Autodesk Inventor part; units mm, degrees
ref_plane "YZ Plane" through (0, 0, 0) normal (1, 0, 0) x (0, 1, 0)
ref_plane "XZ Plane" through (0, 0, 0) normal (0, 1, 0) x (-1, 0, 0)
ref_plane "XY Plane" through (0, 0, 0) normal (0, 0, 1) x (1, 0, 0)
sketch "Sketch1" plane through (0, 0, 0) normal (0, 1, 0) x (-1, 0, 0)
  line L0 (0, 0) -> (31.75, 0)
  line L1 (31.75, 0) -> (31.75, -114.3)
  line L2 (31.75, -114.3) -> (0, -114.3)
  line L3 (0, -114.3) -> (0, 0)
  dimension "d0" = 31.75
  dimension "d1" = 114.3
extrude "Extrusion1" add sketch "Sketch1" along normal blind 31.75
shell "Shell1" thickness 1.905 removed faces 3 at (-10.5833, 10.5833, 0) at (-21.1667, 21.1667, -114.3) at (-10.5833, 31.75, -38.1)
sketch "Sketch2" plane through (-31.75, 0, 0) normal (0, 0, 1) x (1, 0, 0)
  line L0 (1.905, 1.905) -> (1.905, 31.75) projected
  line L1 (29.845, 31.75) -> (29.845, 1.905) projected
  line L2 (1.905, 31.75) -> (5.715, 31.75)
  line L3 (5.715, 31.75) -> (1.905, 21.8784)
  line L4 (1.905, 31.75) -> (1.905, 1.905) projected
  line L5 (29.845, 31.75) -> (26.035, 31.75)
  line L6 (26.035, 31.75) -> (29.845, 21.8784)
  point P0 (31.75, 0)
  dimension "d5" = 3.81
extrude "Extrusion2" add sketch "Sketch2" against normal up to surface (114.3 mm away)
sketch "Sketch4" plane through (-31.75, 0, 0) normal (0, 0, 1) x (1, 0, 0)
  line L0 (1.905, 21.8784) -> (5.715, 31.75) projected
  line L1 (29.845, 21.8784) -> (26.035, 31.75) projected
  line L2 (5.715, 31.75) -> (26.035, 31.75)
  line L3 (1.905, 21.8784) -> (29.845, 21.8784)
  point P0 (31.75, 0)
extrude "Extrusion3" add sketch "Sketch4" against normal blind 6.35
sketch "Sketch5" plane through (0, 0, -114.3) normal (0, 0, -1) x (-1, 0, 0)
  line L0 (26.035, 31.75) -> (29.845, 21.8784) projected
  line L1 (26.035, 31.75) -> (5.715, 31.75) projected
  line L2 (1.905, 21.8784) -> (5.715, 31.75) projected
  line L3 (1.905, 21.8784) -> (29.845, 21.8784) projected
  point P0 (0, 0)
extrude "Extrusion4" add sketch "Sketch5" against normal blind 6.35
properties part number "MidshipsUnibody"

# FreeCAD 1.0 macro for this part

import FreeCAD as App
import Part
import Sketcher
from FreeCAD import Vector
Q = App.Units.Quantity


def faces_at(feature, points):
    """Names of the faces that lie closest to the given points."""
    faces = feature.Shape.Faces
    near = lambda p: min(range(len(faces)), key=lambda i: faces[i].distToShape(Part.Vertex(*p))[0])
    return sorted({f"Face{near(p) + 1}" for p in points})


def add_polygon(sketch, points):
    """Adds a closed chain of lines whose ends are joined by coincident constraints."""
    first, n = sketch.GeometryCount, len(points)
    for a, b in zip(points, points[1:] + points[:1]):
        sketch.addGeometry(Part.LineSegment(App.Vector(*a, 0), App.Vector(*b, 0)), False)
    for i in range(n):
        sketch.addConstraint(Sketcher.Constraint("Coincident", first + i, 2, first + (i + 1) % n, 1))

doc = App.newDocument("Part")
body = doc.addObject("PartDesign::Body", "Body")

# Sketch on XZ plane
sketch1 = body.newObject("Sketcher::SketchObject", "Sketch")
sketch1.AttachmentSupport = (doc.getObject("XZ_Plane"), [""])
sketch1.MapMode = "FlatFace"
add_polygon(sketch1, [(-32, 0), (0, 0), (0, -114), (-32, -114)])  # lines 0-3
sketch1.addConstraint(Sketcher.Constraint("Horizontal", 0))
sketch1.addConstraint(Sketcher.Constraint("Vertical", 1))
sketch1.addConstraint(Sketcher.Constraint("Horizontal", 2))
sketch1.addConstraint(Sketcher.Constraint("Vertical", 3))
sketch1.addConstraint(Sketcher.Constraint("Coincident", 0, 2, -1, 1))
sketch1.addConstraint(Sketcher.Constraint("DistanceY", 1, 2, 1, 1, Q("4.5 in")))
sketch1.addConstraint(Sketcher.Constraint("DistanceX", 0, 1, 0, 2, Q("1.25 in")))
pad1 = body.newObject("PartDesign::Pad", "Pad")
pad1.Profile = sketch1
pad1.Length = Q("1.25 in")
pad1.Reversed = True
doc.recompute()

thickness = body.newObject("PartDesign::Thickness", "Thickness")
thickness.Base = (pad1, faces_at(pad1, [(-10.583, 10.583, 0), (-21.167, 21.167, -114.3), (-10.583, 31.75, -38.1)]))
thickness.Value = Q("0.075 in")
thickness.Reversed = True
thickness.Join = "Intersection"

# Sketch on XY plane
sketch2 = body.newObject("Sketcher::SketchObject", "Sketch001")
sketch2.AttachmentSupport = (doc.getObject("XY_Plane"), [""])
sketch2.MapMode = "FlatFace"
add_polygon(sketch2, [(-29.8, 31.8), (-29.8, 21.9), (-26, 31.8)])  # lines 0-2
add_polygon(sketch2, [(-1.9, 21.9), (-1.9, 31.8), (-5.7, 31.8)])  # lines 3-5
sketch2.addConstraint(Sketcher.Constraint("Vertical", 0))
sketch2.addConstraint(Sketcher.Constraint("Horizontal", 2))
sketch2.addConstraint(Sketcher.Constraint("Vertical", 3))
sketch2.addConstraint(Sketcher.Constraint("Horizontal", 4))
sketch2.addConstraint(Sketcher.Constraint("Horizontal", 2, 2, 3, 2))
sketch2.addConstraint(Sketcher.Constraint("Horizontal", 0, 2, 5, 2))
sketch2.addConstraint(Sketcher.Constraint("Equal", 2, 4))
sketch2.addConstraint(Sketcher.Constraint("DistanceX", 2, 2, 2, 1, Q("0.15 in")))
sketch2.addConstraint(Sketcher.Constraint("DistanceX", 2, 2, 3, 2, Q("1.1 in")))
sketch2.addConstraint(Sketcher.Constraint("DistanceY", -1, 1, 1, 2, Q("1.25 in")))
sketch2.addConstraint(Sketcher.Constraint("DistanceX", 0, 2, -1, 1, Q("1.175 in")))
sketch2.addConstraint(Sketcher.Constraint("DistanceY", 0, 2, 0, 1, 9.8716))
pad2 = body.newObject("PartDesign::Pad", "Pad001")
pad2.Profile = sketch2
pad2.Length = Q("4.5 in")
pad2.Reversed = True

# Sketch on XY plane
sketch3 = body.newObject("Sketcher::SketchObject", "Sketch002")
sketch3.AttachmentSupport = (doc.getObject("XY_Plane"), [""])
sketch3.MapMode = "FlatFace"
add_polygon(sketch3, [(-26, 32), (-30, 22), (-2, 22), (-6, 32)])  # lines 0-3
sketch3.addConstraint(Sketcher.Constraint("Horizontal", 1))
sketch3.addConstraint(Sketcher.Constraint("Horizontal", 3))
sketch3.addConstraint(Sketcher.Constraint("Equal", 0, 2))
sketch3.addConstraint(Sketcher.Constraint("DistanceX", 1, 1, 1, 2, Q("1.1 in")))
sketch3.addConstraint(Sketcher.Constraint("DistanceX", 3, 2, 3, 1, Q("0.8 in")))
sketch3.addConstraint(Sketcher.Constraint("DistanceY", -1, 1, 2, 2, Q("1.25 in")))
sketch3.addConstraint(Sketcher.Constraint("DistanceX", 0, 2, -1, 1, Q("1.175 in")))
sketch3.addConstraint(Sketcher.Constraint("Distance", 0, 10.5813))
pad3 = body.newObject("PartDesign::Pad", "Pad002")
pad3.Profile = sketch3
pad3.Length = Q("0.25 in")
pad3.Reversed = True

# Sketch on XY plane
sketch4 = body.newObject("Sketcher::SketchObject", "Sketch003")
sketch4.AttachmentSupport = (doc.getObject("XY_Plane"), [""])
sketch4.MapMode = "FlatFace"
sketch4.AttachmentOffset = App.Placement(Vector(0, 0, -4.5 * 25.4), App.Rotation())
add_polygon(sketch4, [(-30, 22), (-26, 32), (-6, 32), (-2, 22)])  # lines 0-3
sketch4.addConstraint(Sketcher.Constraint("Horizontal", 1))
sketch4.addConstraint(Sketcher.Constraint("Horizontal", 3))
sketch4.addConstraint(Sketcher.Constraint("Equal", 0, 2))
sketch4.addConstraint(Sketcher.Constraint("DistanceX", 1, 1, 1, 2, Q("0.8 in")))
sketch4.addConstraint(Sketcher.Constraint("DistanceX", 3, 2, 3, 1, Q("1.1 in")))
sketch4.addConstraint(Sketcher.Constraint("DistanceY", -1, 1, 0, 2, Q("1.25 in")))
sketch4.addConstraint(Sketcher.Constraint("DistanceX", 0, 2, -1, 1, Q("1.025 in")))
sketch4.addConstraint(Sketcher.Constraint("Distance", 0, 10.5813))
pad4 = body.newObject("PartDesign::Pad", "Pad003")
pad4.Profile = sketch4
pad4.Length = Q("0.25 in")

doc.recompute()
